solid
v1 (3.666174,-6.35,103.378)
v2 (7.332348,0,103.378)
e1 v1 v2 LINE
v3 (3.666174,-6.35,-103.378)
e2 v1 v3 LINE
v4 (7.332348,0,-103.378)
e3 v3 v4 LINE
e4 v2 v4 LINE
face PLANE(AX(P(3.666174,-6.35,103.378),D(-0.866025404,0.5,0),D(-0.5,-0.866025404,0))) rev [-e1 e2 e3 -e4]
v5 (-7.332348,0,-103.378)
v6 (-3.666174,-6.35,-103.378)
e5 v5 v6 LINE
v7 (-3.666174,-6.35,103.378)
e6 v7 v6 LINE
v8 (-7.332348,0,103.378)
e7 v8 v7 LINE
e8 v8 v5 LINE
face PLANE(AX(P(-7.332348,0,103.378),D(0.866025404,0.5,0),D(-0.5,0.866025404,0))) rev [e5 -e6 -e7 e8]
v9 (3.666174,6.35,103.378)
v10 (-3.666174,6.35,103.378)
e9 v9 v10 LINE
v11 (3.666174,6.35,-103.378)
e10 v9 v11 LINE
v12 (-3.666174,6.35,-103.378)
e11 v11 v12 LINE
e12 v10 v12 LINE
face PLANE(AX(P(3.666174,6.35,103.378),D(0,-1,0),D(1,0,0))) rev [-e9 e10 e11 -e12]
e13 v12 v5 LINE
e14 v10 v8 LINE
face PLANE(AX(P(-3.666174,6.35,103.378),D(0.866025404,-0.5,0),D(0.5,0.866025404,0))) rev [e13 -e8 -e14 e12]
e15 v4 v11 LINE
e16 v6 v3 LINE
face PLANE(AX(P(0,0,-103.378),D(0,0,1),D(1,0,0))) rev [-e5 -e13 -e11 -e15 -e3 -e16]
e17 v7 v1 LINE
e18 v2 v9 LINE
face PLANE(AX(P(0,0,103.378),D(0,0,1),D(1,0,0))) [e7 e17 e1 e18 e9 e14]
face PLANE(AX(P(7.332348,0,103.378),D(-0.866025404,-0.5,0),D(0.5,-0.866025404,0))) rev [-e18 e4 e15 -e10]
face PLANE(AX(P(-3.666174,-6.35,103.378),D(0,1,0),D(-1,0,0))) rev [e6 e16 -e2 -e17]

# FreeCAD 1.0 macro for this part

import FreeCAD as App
import Part
import Sketcher
from FreeCAD import Vector
Q = App.Units.Quantity


def add_polygon(sketch, points):
    """Adds a closed chain of lines whose ends are joined by coincident constraints."""
    first, n = sketch.GeometryCount, len(points)
    for a, b in zip(points, points[1:] + points[:1]):
        sketch.addGeometry(Part.LineSegment(App.Vector(*a, 0), App.Vector(*b, 0)), False)
    for i in range(n):
        sketch.addConstraint(Sketcher.Constraint("Coincident", first + i, 2, first + (i + 1) % n, 1))

doc = App.newDocument("Part")
body = doc.addObject("PartDesign::Body", "Body")

# Sketch on XY plane
sketch1 = body.newObject("Sketcher::SketchObject", "Sketch")
sketch1.AttachmentSupport = (doc.getObject("XY_Plane"), [""])
sketch1.MapMode = "FlatFace"
add_polygon(sketch1, [(4, 6), (-4, 6), (-7, 0), (-4, -6), (4, -6), (7, 0)])  # lines 0-5
sketch1.addConstraint([
    Sketcher.Constraint("Horizontal", 0),
    Sketcher.Constraint("Horizontal", 3),
    Sketcher.Constraint("Symmetric", 0, 2, 3, 2, -1, 1),
    Sketcher.Constraint("Symmetric", 1, 2, 4, 2, -1, 1),
    Sketcher.Constraint("PointOnObject", 1, 2, -1),
    Sketcher.Constraint("Parallel", 2, 5),
    Sketcher.Constraint("Vertical", 0, 2, 2, 2),
    Sketcher.Constraint("Angle", 1, Q("-120 deg")),
    Sketcher.Constraint("DistanceY", 2, 2, 0, 2, Q("0.5 in")),
    Sketcher.Constraint("DistanceX", 0, 2, 0, 1, 7.332348),
])
pad1 = body.newObject("PartDesign::Pad", "Pad")
pad1.Profile = sketch1
pad1.Length = Q("8.14 in")
pad1.Midplane = True

doc.recompute()
